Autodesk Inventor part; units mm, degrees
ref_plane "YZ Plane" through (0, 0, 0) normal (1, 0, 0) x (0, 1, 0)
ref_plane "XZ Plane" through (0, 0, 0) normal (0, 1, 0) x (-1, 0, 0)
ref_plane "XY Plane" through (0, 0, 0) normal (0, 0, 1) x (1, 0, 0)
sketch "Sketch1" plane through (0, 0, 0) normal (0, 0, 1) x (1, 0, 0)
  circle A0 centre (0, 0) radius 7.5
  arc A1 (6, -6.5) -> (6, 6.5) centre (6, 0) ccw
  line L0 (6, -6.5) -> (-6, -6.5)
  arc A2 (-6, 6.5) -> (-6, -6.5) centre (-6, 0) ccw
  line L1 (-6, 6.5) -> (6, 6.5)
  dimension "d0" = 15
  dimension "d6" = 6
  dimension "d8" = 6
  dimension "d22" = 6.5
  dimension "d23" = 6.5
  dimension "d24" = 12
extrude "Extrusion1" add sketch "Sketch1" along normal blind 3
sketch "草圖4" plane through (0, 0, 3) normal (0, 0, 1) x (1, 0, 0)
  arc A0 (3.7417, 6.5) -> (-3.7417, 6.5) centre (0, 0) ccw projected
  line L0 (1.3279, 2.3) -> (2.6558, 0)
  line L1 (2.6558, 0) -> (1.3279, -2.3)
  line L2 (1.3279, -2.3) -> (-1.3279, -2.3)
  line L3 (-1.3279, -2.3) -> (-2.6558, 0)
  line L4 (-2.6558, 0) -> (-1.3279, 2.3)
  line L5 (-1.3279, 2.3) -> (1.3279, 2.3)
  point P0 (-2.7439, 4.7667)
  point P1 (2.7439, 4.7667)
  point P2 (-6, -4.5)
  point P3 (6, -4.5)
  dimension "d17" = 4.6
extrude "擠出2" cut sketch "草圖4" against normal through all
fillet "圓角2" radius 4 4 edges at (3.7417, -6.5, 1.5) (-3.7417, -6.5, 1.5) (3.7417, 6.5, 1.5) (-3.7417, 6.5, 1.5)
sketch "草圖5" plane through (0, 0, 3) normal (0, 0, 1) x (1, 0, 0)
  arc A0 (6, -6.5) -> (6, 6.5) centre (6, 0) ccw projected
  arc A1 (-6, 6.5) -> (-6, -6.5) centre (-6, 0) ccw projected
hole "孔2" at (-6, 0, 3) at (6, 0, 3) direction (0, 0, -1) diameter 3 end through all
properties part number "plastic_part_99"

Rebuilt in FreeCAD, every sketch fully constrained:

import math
import FreeCAD as App
import Part
import Sketcher

V = App.Vector
Q = App.Units.Quantity


def edges_at(feature, points):
    """Names of the edges that pass closest to the given points."""
    edges = feature.Shape.Edges
    near = lambda p: min(range(len(edges)), key=lambda i: edges[i].distToShape(Part.Vertex(*p))[0])
    return sorted({f"Edge{near(p) + 1}" for p in points})


def add_polygon(sketch, points):
    """Adds a closed chain of lines whose ends are joined by coincident constraints."""
    first, n = sketch.GeometryCount, len(points)
    for a, b in zip(points, points[1:] + points[:1]):
        sketch.addGeometry(Part.LineSegment(App.Vector(*a, 0), App.Vector(*b, 0)), False)
    for i in range(n):
        sketch.addConstraint(Sketcher.Constraint("Coincident", first + i, 2, first + (i + 1) % n, 1))

doc = App.newDocument("Part")
params = doc.addObject("Spreadsheet::Sheet", "Params")
for row, (alias, value) in enumerate([
    ("sketch1_radius", "6.5 mm"),
    ("sketch1_radius2", "7.5 mm"),
    ("pad1_length", "3 mm"),
    ("fillet_radius", "4 mm"),
    ("sketch3_diameter", "3 mm"),
    ("hole_diameter", "3 mm"),
], start=1):
    params.set(f"A{row}", alias)
    params.set(f"B{row}", "=" + value)
    params.setAlias(f"B{row}", alias)

body = doc.addObject("PartDesign::Body", "Body")

# Sketch on XY plane
sketch1 = body.newObject("Sketcher::SketchObject", "Sketch")
sketch1.AttachmentSupport = (doc.getObject("XY_Plane"), [""])
sketch1.MapMode = "FlatFace"
sketch1.addGeometry(Part.LineSegment(V(3.741657, -6.5, 0), V(6, -6.5, 0)), False)
sketch1.addGeometry(Part.ArcOfCircle(Part.Circle(V(6, 0, 0), V(0, 0, 1), 6.5), math.radians(-90), math.radians(90)), False)
sketch1.addGeometry(Part.LineSegment(V(6, 6.5, 0), V(3.741657, 6.5, 0)), False)
sketch1.addGeometry(Part.ArcOfCircle(Part.Circle(V(0, 0, 0), V(0, 0, 1), 7.5), math.radians(60.073565), math.radians(119.926435)), False)
sketch1.addGeometry(Part.LineSegment(V(-3.741657, 6.5, 0), V(-6, 6.5, 0)), False)
sketch1.addGeometry(Part.ArcOfCircle(Part.Circle(V(-6, 0, 0), V(0, 0, 1), 6.5), math.radians(90), math.radians(270)), False)
sketch1.addGeometry(Part.LineSegment(V(-6, -6.5, 0), V(-3.741657, -6.5, 0)), False)
sketch1.addGeometry(Part.ArcOfCircle(Part.Circle(V(0, 0, 0), V(0, 0, 1), 7.5), math.radians(-119.926435), math.radians(-60.073565)), False)
sketch1.addConstraint(Sketcher.Constraint("Tangent", 0, 2, 1, 1))
sketch1.addConstraint(Sketcher.Constraint("Tangent", 1, 2, 2, 1))
sketch1.addConstraint(Sketcher.Constraint("Coincident", 2, 2, 3, 1))
sketch1.addConstraint(Sketcher.Constraint("Coincident", 3, 2, 4, 1))
sketch1.addConstraint(Sketcher.Constraint("Tangent", 4, 2, 5, 1))
sketch1.addConstraint(Sketcher.Constraint("Tangent", 5, 2, 6, 1))
sketch1.addConstraint(Sketcher.Constraint("Coincident", 6, 2, 7, 1))
sketch1.addConstraint(Sketcher.Constraint("Coincident", 7, 2, 0, 1))
sketch1.addConstraint(Sketcher.Constraint("Horizontal", 0))
sketch1.addConstraint(Sketcher.Constraint("Horizontal", 2))
sketch1.addConstraint(Sketcher.Constraint("Horizontal", 4))
sketch1.addConstraint(Sketcher.Constraint("Horizontal", 6))
sketch1.addConstraint(Sketcher.Constraint("Coincident", 3, 3, -1, 1))
sketch1.addConstraint(Sketcher.Constraint("Coincident", 7, 3, -1, 1))
sketch1.addConstraint(Sketcher.Constraint("Equal", 1, 5))
sketch1.addConstraint(Sketcher.Constraint("Equal", 3, 7))
sketch1.addConstraint(Sketcher.Constraint("Symmetric", 1, 3, 5, 3, -1, 1))
sketch1.addConstraint(Sketcher.Constraint("PointOnObject", 1, 3, -1))
sketch1.addConstraint(Sketcher.Constraint("Radius", 1, 6.5))
sketch1.addConstraint(Sketcher.Constraint("Radius", 3, 7.5))
sketch1.addConstraint(Sketcher.Constraint("DistanceX", -1, 1, 1, 3, 6.0))
sketch1.setExpression("Constraints[18]", "Params.sketch1_radius")
sketch1.setExpression("Constraints[19]", "Params.sketch1_radius2")
pad1 = body.newObject("PartDesign::Pad", "Pad")
pad1.Profile = sketch1
pad1.setExpression("Length", "Params.pad1_length")

# Sketch on XY plane
sketch2 = body.newObject("Sketcher::SketchObject", "Sketch001")
sketch2.AttachmentSupport = (doc.getObject("XY_Plane"), [""])
sketch2.MapMode = "FlatFace"
sketch2.AttachmentOffset = App.Placement(V(0, 0, 3), App.Rotation())
add_polygon(sketch2, [(2.6558, 0), (1.3279, 2.3), (-1.3279, 2.3), (-2.6558, 0), (-1.3279, -2.3), (1.3279, -2.3)])  # lines 0-5
sketch2.addConstraint(Sketcher.Constraint("Horizontal", 1))
sketch2.addConstraint(Sketcher.Constraint("Horizontal", 4))
sketch2.addConstraint(Sketcher.Constraint("Symmetric", 0, 2, 3, 2, -1, 1))
sketch2.addConstraint(Sketcher.Constraint("Symmetric", 2, 2, 5, 2, -1, 1))
sketch2.addConstraint(Sketcher.Constraint("PointOnObject", 2, 2, -1))
sketch2.addConstraint(Sketcher.Constraint("Parallel", 2, 5))
sketch2.addConstraint(Sketcher.Constraint("Vertical", 1, 2, 3, 2))
sketch2.addConstraint(Sketcher.Constraint("DistanceY", 3, 2, 1, 2, 4.6))
sketch2.addConstraint(Sketcher.Constraint("Angle", 0, Q("120 deg")))
sketch2.addConstraint(Sketcher.Constraint("DistanceX", 1, 2, 1, 1, 2.6558))
pocket1 = body.newObject("PartDesign::Pocket", "Pocket")
pocket1.Profile = sketch2
pocket1.Type = "ThroughAll"
doc.recompute()

fillet = body.newObject("PartDesign::Fillet", "Fillet")
fillet.Base = (pocket1, edges_at(pocket1, [
    (3.742, -6.5, 1.5),
    (-3.742, -6.5, 1.5),
    (3.742, 6.5, 1.5),
    (-3.742, 6.5, 1.5),
]))
fillet.setExpression("Radius", "Params.fillet_radius")

# Sketch on XY plane
sketch3 = body.newObject("Sketcher::SketchObject", "Sketch002")
sketch3.AttachmentSupport = (doc.getObject("XY_Plane"), [""])
sketch3.MapMode = "FlatFace"
sketch3.AttachmentOffset = App.Placement(V(0, 0, 3), App.Rotation())
sketch3.addGeometry(Part.Circle(V(-6, 0, 0), V(0, 0, 1), 1.5), False)
sketch3.addGeometry(Part.Circle(V(6, 0, 0), V(0, 0, 1), 1.5), False)
sketch3.addConstraint(Sketcher.Constraint("Equal", 0, 1))
sketch3.addConstraint(Sketcher.Constraint("Symmetric", 0, 3, 1, 3, -1, 1))
sketch3.addConstraint(Sketcher.Constraint("PointOnObject", 0, 3, -1))
sketch3.addConstraint(Sketcher.Constraint("Diameter", 0, 3.0))
sketch3.addConstraint(Sketcher.Constraint("DistanceX", 0, 3, -1, 1, 6.0))
sketch3.setExpression("Constraints[3]", "Params.sketch3_diameter")
doc.recompute()
hole = body.newObject("PartDesign::Hole", "Hole")
hole.Profile = sketch3
hole.ThreadType = "None"
hole.setExpression("Diameter", "Params.hole_diameter")
hole.DepthType = "ThroughAll"

doc.recompute()
